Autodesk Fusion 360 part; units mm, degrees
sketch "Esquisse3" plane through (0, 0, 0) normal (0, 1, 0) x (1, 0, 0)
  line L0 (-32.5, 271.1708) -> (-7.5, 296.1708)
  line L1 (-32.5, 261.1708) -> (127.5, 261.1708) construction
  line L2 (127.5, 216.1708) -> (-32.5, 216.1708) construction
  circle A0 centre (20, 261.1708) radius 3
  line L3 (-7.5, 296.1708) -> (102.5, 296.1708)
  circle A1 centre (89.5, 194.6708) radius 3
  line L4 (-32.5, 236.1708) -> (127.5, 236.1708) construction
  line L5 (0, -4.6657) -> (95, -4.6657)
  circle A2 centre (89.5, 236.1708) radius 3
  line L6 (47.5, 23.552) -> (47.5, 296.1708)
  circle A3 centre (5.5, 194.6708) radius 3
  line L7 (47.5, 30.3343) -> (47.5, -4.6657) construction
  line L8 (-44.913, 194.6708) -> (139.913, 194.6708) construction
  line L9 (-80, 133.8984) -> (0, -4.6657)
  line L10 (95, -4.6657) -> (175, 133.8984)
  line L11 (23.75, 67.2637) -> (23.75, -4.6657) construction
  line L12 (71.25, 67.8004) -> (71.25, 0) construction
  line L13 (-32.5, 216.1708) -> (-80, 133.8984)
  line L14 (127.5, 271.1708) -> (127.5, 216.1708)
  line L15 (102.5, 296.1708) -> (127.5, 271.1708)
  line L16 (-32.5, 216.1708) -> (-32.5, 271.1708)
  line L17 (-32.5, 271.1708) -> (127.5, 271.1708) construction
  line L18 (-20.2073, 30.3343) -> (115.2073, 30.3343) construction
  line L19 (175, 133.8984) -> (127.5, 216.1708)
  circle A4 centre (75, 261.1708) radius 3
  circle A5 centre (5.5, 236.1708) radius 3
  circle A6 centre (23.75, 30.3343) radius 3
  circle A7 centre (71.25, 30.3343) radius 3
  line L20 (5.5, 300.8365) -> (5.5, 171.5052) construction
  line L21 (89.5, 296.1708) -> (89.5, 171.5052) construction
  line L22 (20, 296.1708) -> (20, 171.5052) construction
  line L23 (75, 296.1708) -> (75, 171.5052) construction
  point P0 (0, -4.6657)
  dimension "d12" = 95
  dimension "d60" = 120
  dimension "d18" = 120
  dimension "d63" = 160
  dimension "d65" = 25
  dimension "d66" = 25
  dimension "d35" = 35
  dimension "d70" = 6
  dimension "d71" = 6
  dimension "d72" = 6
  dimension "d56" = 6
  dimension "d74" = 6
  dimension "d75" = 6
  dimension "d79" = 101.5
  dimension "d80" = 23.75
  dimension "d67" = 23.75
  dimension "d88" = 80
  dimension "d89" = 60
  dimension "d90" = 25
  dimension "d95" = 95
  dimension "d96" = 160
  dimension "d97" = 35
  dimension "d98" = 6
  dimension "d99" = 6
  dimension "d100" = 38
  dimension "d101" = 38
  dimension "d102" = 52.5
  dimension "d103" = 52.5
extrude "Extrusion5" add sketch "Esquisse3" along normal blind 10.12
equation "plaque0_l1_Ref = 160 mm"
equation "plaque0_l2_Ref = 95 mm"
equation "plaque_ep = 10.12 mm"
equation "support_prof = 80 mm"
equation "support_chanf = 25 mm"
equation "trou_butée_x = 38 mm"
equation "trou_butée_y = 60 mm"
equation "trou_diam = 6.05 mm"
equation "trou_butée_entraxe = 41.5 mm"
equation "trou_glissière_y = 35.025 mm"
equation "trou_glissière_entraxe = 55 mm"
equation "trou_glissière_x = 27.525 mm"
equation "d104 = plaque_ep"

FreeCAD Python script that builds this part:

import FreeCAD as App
import Part
import Sketcher
from FreeCAD import Vector
Q = App.Units.Quantity

doc = App.newDocument("Part")
body = doc.addObject("PartDesign::Body", "Body")

sketch1 = doc.addObject("Sketcher::SketchObject", "Sketch")
body.addObject(sketch1)
sketch1.AttachmentSupport = (doc.XZ_Plane, [""])
sketch1.MapMode = "FlatFace"
sketch1.addGeometry([
    Part.LineSegment(Vector(-7.5, -296.2, 0), Vector(-32.5, -271.2, 0)),
    Part.LineSegment(Vector(-32.5, -271.2, 0), Vector(-32.5, -216.2, 0)),
    Part.LineSegment(Vector(-32.5, -216.2, 0), Vector(-80, -133.9, 0)),
    Part.LineSegment(Vector(-80, -133.9, 0), Vector(0, 4.7, 0)),
    Part.LineSegment(Vector(0, 4.7, 0), Vector(95, 4.7, 0)),
    Part.LineSegment(Vector(95, 4.7, 0), Vector(175, -133.9, 0)),
    Part.LineSegment(Vector(175, -133.9, 0), Vector(127.5, -216.2, 0)),
    Part.LineSegment(Vector(127.5, -216.2, 0), Vector(127.5, -271.2, 0)),
    Part.LineSegment(Vector(127.5, -271.2, 0), Vector(102.5, -296.2, 0)),
    Part.LineSegment(Vector(102.5, -296.2, 0), Vector(-7.5, -296.2, 0)),
    Part.Circle(Vector(23.8, -30.3, 0), Vector(0, 0, 1), 3),
    Part.Circle(Vector(71.2, -30.3, 0), Vector(0, 0, 1), 3),
    Part.Circle(Vector(5.5, -194.7, 0), Vector(0, 0, 1), 3),
    Part.Circle(Vector(5.5, -236.2, 0), Vector(0, 0, 1), 3),
    Part.Circle(Vector(20, -261.2, 0), Vector(0, 0, 1), 3),
    Part.Circle(Vector(89.5, -194.7, 0), Vector(0, 0, 1), 3),
    Part.Circle(Vector(89.5, -236.2, 0), Vector(0, 0, 1), 3),
    Part.Circle(Vector(75, -261.2, 0), Vector(0, 0, 1), 3),
], False)
sketch1.addConstraint([
    Sketcher.Constraint("Coincident", 0, 2, 1, 1),
    Sketcher.Constraint("Coincident", 1, 2, 2, 1),
    Sketcher.Constraint("Coincident", 2, 2, 3, 1),
    Sketcher.Constraint("Coincident", 3, 2, 4, 1),
    Sketcher.Constraint("Coincident", 4, 2, 5, 1),
    Sketcher.Constraint("Coincident", 5, 2, 6, 1),
    Sketcher.Constraint("Coincident", 6, 2, 7, 1),
    Sketcher.Constraint("Coincident", 7, 2, 8, 1),
    Sketcher.Constraint("Coincident", 8, 2, 9, 1),
    Sketcher.Constraint("Coincident", 9, 2, 0, 1),
    Sketcher.Constraint("Vertical", 1),
    Sketcher.Constraint("Horizontal", 4),
    Sketcher.Constraint("Vertical", 7),
    Sketcher.Constraint("Horizontal", 9),
    Sketcher.Constraint("Equal", 10, 11),
    Sketcher.Constraint("Equal", 11, 12),
    Sketcher.Constraint("Equal", 12, 13),
    Sketcher.Constraint("Equal", 13, 14),
    Sketcher.Constraint("Equal", 14, 15),
    Sketcher.Constraint("Equal", 15, 16),
    Sketcher.Constraint("Equal", 16, 17),
    Sketcher.Constraint("PointOnObject", 3, 2, -2),
    Sketcher.Constraint("Parallel", 2, 5),
    Sketcher.Constraint("Parallel", 3, 6),
    Sketcher.Constraint("Perpendicular", 0, 8),
    Sketcher.Constraint("Horizontal", 10, 3, 11, 3),
    Sketcher.Constraint("Horizontal", 12, 3, 15, 3),
    Sketcher.Constraint("Horizontal", 13, 3, 16, 3),
    Sketcher.Constraint("Horizontal", 14, 3, 17, 3),
    Sketcher.Constraint("Horizontal", 2, 2, 5, 2),
    Sketcher.Constraint("Horizontal", 1, 2, 6, 2),
    Sketcher.Constraint("Horizontal", 0, 2, 7, 2),
    Sketcher.Constraint("Vertical", 12, 3, 13, 3),
    Sketcher.Constraint("Vertical", 15, 3, 16, 3),
    Sketcher.Constraint("Equal", 3, 5),
    Sketcher.Constraint("Equal", 0, 8),
    Sketcher.Constraint("Diameter", 10, 6.0),
    Sketcher.Constraint("DistanceX", 4, 1, 4, 2, 95.0),
    Sketcher.Constraint("Angle", 2, Q("120 deg")),
    Sketcher.Constraint("Distance", 2, 95.0),
    Sketcher.Constraint("Distance", 3, 160.0),
    Sketcher.Constraint("DistanceY", 14, 3, 13, 3, 25.0),
    Sketcher.Constraint("DistanceX", 0, 2, 13, 3, 38.0),
    Sketcher.Constraint("DistanceY", 0, 2, 13, 3, 35.0),
    Sketcher.Constraint("DistanceY", 10, 3, 3, 2, 35.0),
    Sketcher.Constraint("DistanceX", 16, 3, 6, 2, 38.0),
    Sketcher.Constraint("DistanceX", 8, 2, 7, 2, 25.0),
    Sketcher.Constraint("DistanceY", 8, 2, 6, 2, 80.0),
    Sketcher.Constraint("DistanceX", 0, 2, 14, 3, 52.5),
    Sketcher.Constraint("DistanceX", 17, 3, 6, 2, 52.5),
    Sketcher.Constraint("DistanceX", -1, 1, 10, 3, 23.75),
    Sketcher.Constraint("DistanceX", 11, 3, 4, 2, 23.75),
    Sketcher.Constraint("DistanceY", 13, 3, 12, 3, 41.5),
    Sketcher.Constraint("DistanceY", 10, 3, -1, 1, 30.3343),
])
pad1 = doc.addObject("PartDesign::Pad", "Pad")
body.addObject(pad1)
pad1.Profile = sketch1
pad1.Length = 10.12
pad1.Reversed = True

doc.recompute()
